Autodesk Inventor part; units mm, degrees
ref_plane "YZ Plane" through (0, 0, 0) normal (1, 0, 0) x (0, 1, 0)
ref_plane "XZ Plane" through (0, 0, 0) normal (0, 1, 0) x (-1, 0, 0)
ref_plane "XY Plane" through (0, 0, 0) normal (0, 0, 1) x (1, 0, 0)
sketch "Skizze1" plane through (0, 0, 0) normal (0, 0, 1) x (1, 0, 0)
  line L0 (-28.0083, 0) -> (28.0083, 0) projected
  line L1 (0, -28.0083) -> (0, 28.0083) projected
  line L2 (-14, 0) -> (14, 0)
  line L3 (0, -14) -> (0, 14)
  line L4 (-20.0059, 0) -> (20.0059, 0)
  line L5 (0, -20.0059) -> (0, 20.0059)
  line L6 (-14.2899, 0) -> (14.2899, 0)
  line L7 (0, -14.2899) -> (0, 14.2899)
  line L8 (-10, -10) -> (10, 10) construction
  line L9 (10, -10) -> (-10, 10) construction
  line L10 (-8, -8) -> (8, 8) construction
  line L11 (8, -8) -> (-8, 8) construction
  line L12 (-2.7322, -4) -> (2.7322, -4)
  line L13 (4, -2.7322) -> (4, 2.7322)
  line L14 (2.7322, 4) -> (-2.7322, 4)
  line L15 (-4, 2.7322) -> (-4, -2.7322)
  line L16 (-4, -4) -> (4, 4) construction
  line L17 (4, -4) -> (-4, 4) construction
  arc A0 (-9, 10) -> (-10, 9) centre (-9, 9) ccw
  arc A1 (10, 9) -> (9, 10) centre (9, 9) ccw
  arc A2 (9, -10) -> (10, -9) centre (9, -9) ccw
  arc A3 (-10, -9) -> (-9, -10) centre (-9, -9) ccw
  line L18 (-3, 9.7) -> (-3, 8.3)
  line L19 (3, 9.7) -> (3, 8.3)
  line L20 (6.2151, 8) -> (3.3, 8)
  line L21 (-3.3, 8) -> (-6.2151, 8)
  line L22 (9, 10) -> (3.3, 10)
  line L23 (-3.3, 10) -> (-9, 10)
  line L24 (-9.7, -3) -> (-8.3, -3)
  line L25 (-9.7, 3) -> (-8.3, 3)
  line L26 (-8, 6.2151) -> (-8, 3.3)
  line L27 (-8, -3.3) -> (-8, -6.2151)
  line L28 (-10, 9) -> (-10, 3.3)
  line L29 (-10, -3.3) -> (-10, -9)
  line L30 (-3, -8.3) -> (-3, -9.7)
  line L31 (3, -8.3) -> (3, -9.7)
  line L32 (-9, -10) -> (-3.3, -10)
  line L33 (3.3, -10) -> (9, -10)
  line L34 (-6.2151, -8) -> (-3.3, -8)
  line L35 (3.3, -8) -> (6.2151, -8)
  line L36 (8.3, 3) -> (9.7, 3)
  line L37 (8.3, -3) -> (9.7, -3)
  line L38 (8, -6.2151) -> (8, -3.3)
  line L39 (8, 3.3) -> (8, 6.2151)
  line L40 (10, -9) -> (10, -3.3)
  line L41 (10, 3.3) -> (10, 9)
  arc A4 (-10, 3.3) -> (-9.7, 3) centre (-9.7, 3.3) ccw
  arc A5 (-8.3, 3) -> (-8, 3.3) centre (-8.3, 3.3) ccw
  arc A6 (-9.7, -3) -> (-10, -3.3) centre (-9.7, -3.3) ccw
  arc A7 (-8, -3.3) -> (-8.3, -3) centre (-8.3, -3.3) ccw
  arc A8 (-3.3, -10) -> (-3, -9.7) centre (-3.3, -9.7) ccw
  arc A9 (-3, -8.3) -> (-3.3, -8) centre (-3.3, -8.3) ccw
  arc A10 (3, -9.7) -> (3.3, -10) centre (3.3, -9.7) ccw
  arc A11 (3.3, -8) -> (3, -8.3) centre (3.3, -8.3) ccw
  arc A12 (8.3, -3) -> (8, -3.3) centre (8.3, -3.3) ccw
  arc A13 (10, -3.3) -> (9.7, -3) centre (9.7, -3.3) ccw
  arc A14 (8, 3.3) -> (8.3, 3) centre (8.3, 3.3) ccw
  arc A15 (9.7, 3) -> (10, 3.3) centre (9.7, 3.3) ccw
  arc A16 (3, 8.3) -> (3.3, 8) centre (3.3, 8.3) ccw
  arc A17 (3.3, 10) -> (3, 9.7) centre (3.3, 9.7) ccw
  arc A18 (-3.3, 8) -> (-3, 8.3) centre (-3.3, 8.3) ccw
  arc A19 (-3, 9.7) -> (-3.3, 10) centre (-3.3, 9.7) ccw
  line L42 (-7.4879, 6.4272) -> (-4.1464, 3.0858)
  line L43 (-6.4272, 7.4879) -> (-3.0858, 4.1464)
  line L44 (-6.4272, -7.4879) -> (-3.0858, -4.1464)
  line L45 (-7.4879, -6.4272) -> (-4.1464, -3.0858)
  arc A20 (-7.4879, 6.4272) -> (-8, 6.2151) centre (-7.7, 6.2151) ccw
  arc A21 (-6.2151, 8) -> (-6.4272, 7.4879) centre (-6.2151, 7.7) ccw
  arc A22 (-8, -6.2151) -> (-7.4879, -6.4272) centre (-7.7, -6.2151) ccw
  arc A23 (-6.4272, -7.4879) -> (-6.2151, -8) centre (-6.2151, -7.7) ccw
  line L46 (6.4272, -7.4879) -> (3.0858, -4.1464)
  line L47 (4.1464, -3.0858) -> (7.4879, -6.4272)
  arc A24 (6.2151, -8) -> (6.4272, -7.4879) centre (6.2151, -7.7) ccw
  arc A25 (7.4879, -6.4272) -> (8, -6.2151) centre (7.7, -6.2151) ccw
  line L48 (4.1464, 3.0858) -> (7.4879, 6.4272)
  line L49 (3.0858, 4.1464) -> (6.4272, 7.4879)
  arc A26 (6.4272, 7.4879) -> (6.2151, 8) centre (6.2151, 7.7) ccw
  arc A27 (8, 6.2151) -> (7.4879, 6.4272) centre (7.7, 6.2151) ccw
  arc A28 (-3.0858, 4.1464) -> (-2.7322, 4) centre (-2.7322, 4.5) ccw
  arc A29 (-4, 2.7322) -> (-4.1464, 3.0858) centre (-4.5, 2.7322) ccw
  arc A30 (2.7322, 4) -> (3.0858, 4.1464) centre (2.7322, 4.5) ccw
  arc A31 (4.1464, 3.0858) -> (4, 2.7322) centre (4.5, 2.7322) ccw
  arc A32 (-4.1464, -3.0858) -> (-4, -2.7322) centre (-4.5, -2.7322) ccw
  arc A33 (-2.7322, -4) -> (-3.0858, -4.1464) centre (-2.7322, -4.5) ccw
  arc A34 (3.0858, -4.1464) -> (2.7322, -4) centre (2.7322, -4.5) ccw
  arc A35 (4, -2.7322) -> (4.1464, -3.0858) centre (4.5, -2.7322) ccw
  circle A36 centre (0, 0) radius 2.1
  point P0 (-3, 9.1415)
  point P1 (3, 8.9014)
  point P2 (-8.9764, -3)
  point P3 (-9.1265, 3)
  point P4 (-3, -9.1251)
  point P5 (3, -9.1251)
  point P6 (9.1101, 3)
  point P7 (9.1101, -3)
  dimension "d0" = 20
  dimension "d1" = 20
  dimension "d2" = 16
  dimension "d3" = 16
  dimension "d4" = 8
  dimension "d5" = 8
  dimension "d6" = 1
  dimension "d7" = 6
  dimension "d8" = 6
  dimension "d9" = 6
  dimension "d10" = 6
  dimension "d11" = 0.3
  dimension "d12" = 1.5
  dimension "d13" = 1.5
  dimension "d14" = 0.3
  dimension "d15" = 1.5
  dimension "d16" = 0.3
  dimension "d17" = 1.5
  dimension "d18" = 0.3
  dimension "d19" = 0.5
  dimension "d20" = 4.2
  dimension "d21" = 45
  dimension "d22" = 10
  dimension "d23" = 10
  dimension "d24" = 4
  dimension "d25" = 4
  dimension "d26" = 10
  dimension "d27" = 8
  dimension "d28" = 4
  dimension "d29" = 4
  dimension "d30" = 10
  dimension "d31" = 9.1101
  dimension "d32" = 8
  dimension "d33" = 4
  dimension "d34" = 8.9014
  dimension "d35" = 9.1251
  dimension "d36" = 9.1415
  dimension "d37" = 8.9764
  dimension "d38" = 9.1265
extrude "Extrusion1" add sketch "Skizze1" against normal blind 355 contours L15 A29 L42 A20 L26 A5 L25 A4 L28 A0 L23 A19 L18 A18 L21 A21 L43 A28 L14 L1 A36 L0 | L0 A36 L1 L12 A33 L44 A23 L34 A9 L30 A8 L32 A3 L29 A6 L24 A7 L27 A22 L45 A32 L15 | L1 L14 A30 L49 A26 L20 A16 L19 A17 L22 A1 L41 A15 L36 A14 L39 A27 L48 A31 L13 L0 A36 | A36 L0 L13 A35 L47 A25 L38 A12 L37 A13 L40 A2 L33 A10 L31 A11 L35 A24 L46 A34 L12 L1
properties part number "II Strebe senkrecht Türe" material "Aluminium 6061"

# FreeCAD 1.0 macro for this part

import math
import FreeCAD as App
import Part
import Sketcher
Q = App.Units.Quantity

doc = App.newDocument("Part")
body = doc.addObject("PartDesign::Body", "Body")

sketch1 = doc.addObject("Sketcher::SketchObject", "Sketch")
body.addObject(sketch1)
sketch1.AttachmentSupport = (doc.XY_Plane, [""])
sketch1.MapMode = "FlatFace"
sketch1.addGeometry(Part.LineSegment(App.Vector(-4, 2.73, 0), App.Vector(-4, -2.73, 0)), False)
sketch1.addGeometry(Part.ArcOfCircle(Part.Circle(App.Vector(-4.5, -2.73, 0), App.Vector(0, 0, 1), 0.5), math.radians(-45), math.radians(0)), False)
sketch1.addGeometry(Part.LineSegment(App.Vector(-4.15, -3.09, 0), App.Vector(-7.49, -6.43, 0)), False)
sketch1.addGeometry(Part.ArcOfCircle(Part.Circle(App.Vector(-7.7, -6.22, 0), App.Vector(0, 0, 1), 0.3), math.radians(180), math.radians(315)), False)
sketch1.addGeometry(Part.LineSegment(App.Vector(-8, -6.22, 0), App.Vector(-8, -3.3, 0)), False)
sketch1.addGeometry(Part.ArcOfCircle(Part.Circle(App.Vector(-8.3, -3.3, 0), App.Vector(0, 0, 1), 0.3), math.radians(0), math.radians(90)), False)
sketch1.addGeometry(Part.LineSegment(App.Vector(-8.3, -3, 0), App.Vector(-9.7, -3, 0)), False)
sketch1.addGeometry(Part.ArcOfCircle(Part.Circle(App.Vector(-9.7, -3.3, 0), App.Vector(0, 0, 1), 0.3), math.radians(90), math.radians(180)), False)
sketch1.addGeometry(Part.LineSegment(App.Vector(-10, -3.3, 0), App.Vector(-10, -9, 0)), False)
sketch1.addGeometry(Part.ArcOfCircle(Part.Circle(App.Vector(-9, -9, 0), App.Vector(0, 0, 1), 1), math.radians(180), math.radians(270)), False)
sketch1.addGeometry(Part.LineSegment(App.Vector(-9, -10, 0), App.Vector(-3.3, -10, 0)), False)
sketch1.addGeometry(Part.ArcOfCircle(Part.Circle(App.Vector(-3.3, -9.7, 0), App.Vector(0, 0, 1), 0.3), math.radians(-90), math.radians(0)), False)
sketch1.addGeometry(Part.LineSegment(App.Vector(-3, -9.7, 0), App.Vector(-3, -8.3, 0)), False)
sketch1.addGeometry(Part.ArcOfCircle(Part.Circle(App.Vector(-3.3, -8.3, 0), App.Vector(0, 0, 1), 0.3), math.radians(0), math.radians(90)), False)
sketch1.addGeometry(Part.LineSegment(App.Vector(-3.3, -8, 0), App.Vector(-6.22, -8, 0)), False)
sketch1.addGeometry(Part.ArcOfCircle(Part.Circle(App.Vector(-6.22, -7.7, 0), App.Vector(0, 0, 1), 0.3), math.radians(135), math.radians(270)), False)
sketch1.addGeometry(Part.LineSegment(App.Vector(-6.43, -7.49, 0), App.Vector(-3.09, -4.15, 0)), False)
sketch1.addGeometry(Part.ArcOfCircle(Part.Circle(App.Vector(-2.73, -4.5, 0), App.Vector(0, 0, 1), 0.5), math.radians(90), math.radians(135)), False)
sketch1.addGeometry(Part.LineSegment(App.Vector(-2.73, -4, 0), App.Vector(2.73, -4, 0)), False)
sketch1.addGeometry(Part.ArcOfCircle(Part.Circle(App.Vector(2.73, -4.5, 0), App.Vector(0, 0, 1), 0.5), math.radians(45), math.radians(90)), False)
sketch1.addGeometry(Part.LineSegment(App.Vector(3.09, -4.15, 0), App.Vector(6.43, -7.49, 0)), False)
sketch1.addGeometry(Part.ArcOfCircle(Part.Circle(App.Vector(6.22, -7.7, 0), App.Vector(0, 0, 1), 0.3), math.radians(-90), math.radians(45)), False)
sketch1.addGeometry(Part.LineSegment(App.Vector(6.22, -8, 0), App.Vector(3.3, -8, 0)), False)
sketch1.addGeometry(Part.ArcOfCircle(Part.Circle(App.Vector(3.3, -8.3, 0), App.Vector(0, 0, 1), 0.3), math.radians(90), math.radians(180)), False)
sketch1.addGeometry(Part.LineSegment(App.Vector(3, -8.3, 0), App.Vector(3, -9.7, 0)), False)
sketch1.addGeometry(Part.ArcOfCircle(Part.Circle(App.Vector(3.3, -9.7, 0), App.Vector(0, 0, 1), 0.3), math.radians(180), math.radians(270)), False)
sketch1.addGeometry(Part.LineSegment(App.Vector(3.3, -10, 0), App.Vector(9, -10, 0)), False)
sketch1.addGeometry(Part.ArcOfCircle(Part.Circle(App.Vector(9, -9, 0), App.Vector(0, 0, 1), 1), math.radians(-90), math.radians(0)), False)
sketch1.addGeometry(Part.LineSegment(App.Vector(10, -9, 0), App.Vector(10, -3.3, 0)), False)
sketch1.addGeometry(Part.ArcOfCircle(Part.Circle(App.Vector(9.7, -3.3, 0), App.Vector(0, 0, 1), 0.3), math.radians(0), math.radians(90)), False)
sketch1.addGeometry(Part.LineSegment(App.Vector(9.7, -3, 0), App.Vector(8.3, -3, 0)), False)
sketch1.addGeometry(Part.ArcOfCircle(Part.Circle(App.Vector(8.3, -3.3, 0), App.Vector(0, 0, 1), 0.3), math.radians(90), math.radians(180)), False)
sketch1.addGeometry(Part.LineSegment(App.Vector(8, -3.3, 0), App.Vector(8, -6.22, 0)), False)
sketch1.addGeometry(Part.ArcOfCircle(Part.Circle(App.Vector(7.7, -6.22, 0), App.Vector(0, 0, 1), 0.3), math.radians(-135), math.radians(0)), False)
sketch1.addGeometry(Part.LineSegment(App.Vector(7.49, -6.43, 0), App.Vector(4.15, -3.09, 0)), False)
sketch1.addGeometry(Part.ArcOfCircle(Part.Circle(App.Vector(4.5, -2.73, 0), App.Vector(0, 0, 1), 0.5), math.radians(180), math.radians(225)), False)
sketch1.addGeometry(Part.LineSegment(App.Vector(4, -2.73, 0), App.Vector(4, 2.73, 0)), False)
sketch1.addGeometry(Part.ArcOfCircle(Part.Circle(App.Vector(4.5, 2.73, 0), App.Vector(0, 0, 1), 0.5), math.radians(135), math.radians(180)), False)
sketch1.addGeometry(Part.LineSegment(App.Vector(4.15, 3.09, 0), App.Vector(7.49, 6.43, 0)), False)
sketch1.addGeometry(Part.ArcOfCircle(Part.Circle(App.Vector(7.7, 6.22, 0), App.Vector(0, 0, 1), 0.3), math.radians(0), math.radians(135)), False)
sketch1.addGeometry(Part.LineSegment(App.Vector(8, 6.22, 0), App.Vector(8, 3.3, 0)), False)
sketch1.addGeometry(Part.ArcOfCircle(Part.Circle(App.Vector(8.3, 3.3, 0), App.Vector(0, 0, 1), 0.3), math.radians(180), math.radians(270)), False)
sketch1.addGeometry(Part.LineSegment(App.Vector(8.3, 3, 0), App.Vector(9.7, 3, 0)), False)
sketch1.addGeometry(Part.ArcOfCircle(Part.Circle(App.Vector(9.7, 3.3, 0), App.Vector(0, 0, 1), 0.3), math.radians(-90), math.radians(0)), False)
sketch1.addGeometry(Part.LineSegment(App.Vector(10, 3.3, 0), App.Vector(10, 9, 0)), False)
sketch1.addGeometry(Part.ArcOfCircle(Part.Circle(App.Vector(9, 9, 0), App.Vector(0, 0, 1), 1), math.radians(0), math.radians(90)), False)
sketch1.addGeometry(Part.LineSegment(App.Vector(9, 10, 0), App.Vector(3.3, 10, 0)), False)
sketch1.addGeometry(Part.ArcOfCircle(Part.Circle(App.Vector(3.3, 9.7, 0), App.Vector(0, 0, 1), 0.3), math.radians(90), math.radians(180)), False)
sketch1.addGeometry(Part.LineSegment(App.Vector(3, 9.7, 0), App.Vector(3, 8.3, 0)), False)
sketch1.addGeometry(Part.ArcOfCircle(Part.Circle(App.Vector(3.3, 8.3, 0), App.Vector(0, 0, 1), 0.3), math.radians(180), math.radians(270)), False)
sketch1.addGeometry(Part.LineSegment(App.Vector(3.3, 8, 0), App.Vector(6.22, 8, 0)), False)
sketch1.addGeometry(Part.ArcOfCircle(Part.Circle(App.Vector(6.22, 7.7, 0), App.Vector(0, 0, 1), 0.3), math.radians(-45), math.radians(90)), False)
sketch1.addGeometry(Part.LineSegment(App.Vector(6.43, 7.49, 0), App.Vector(3.09, 4.15, 0)), False)
sketch1.addGeometry(Part.ArcOfCircle(Part.Circle(App.Vector(2.73, 4.5, 0), App.Vector(0, 0, 1), 0.5), math.radians(-90), math.radians(-45)), False)
sketch1.addGeometry(Part.LineSegment(App.Vector(2.73, 4, 0), App.Vector(-2.73, 4, 0)), False)
sketch1.addGeometry(Part.ArcOfCircle(Part.Circle(App.Vector(-2.73, 4.5, 0), App.Vector(0, 0, 1), 0.5), math.radians(-135), math.radians(-90)), False)
sketch1.addGeometry(Part.LineSegment(App.Vector(-3.09, 4.15, 0), App.Vector(-6.43, 7.49, 0)), False)
sketch1.addGeometry(Part.ArcOfCircle(Part.Circle(App.Vector(-6.22, 7.7, 0), App.Vector(0, 0, 1), 0.3), math.radians(90), math.radians(225)), False)
sketch1.addGeometry(Part.LineSegment(App.Vector(-6.22, 8, 0), App.Vector(-3.3, 8, 0)), False)
sketch1.addGeometry(Part.ArcOfCircle(Part.Circle(App.Vector(-3.3, 8.3, 0), App.Vector(0, 0, 1), 0.3), math.radians(-90), math.radians(0)), False)
sketch1.addGeometry(Part.LineSegment(App.Vector(-3, 8.3, 0), App.Vector(-3, 9.7, 0)), False)
sketch1.addGeometry(Part.ArcOfCircle(Part.Circle(App.Vector(-3.3, 9.7, 0), App.Vector(0, 0, 1), 0.3), math.radians(0), math.radians(90)), False)
sketch1.addGeometry(Part.LineSegment(App.Vector(-3.3, 10, 0), App.Vector(-9, 10, 0)), False)
sketch1.addGeometry(Part.ArcOfCircle(Part.Circle(App.Vector(-9, 9, 0), App.Vector(0, 0, 1), 1), math.radians(90), math.radians(180)), False)
sketch1.addGeometry(Part.LineSegment(App.Vector(-10, 9, 0), App.Vector(-10, 3.3, 0)), False)
sketch1.addGeometry(Part.ArcOfCircle(Part.Circle(App.Vector(-9.7, 3.3, 0), App.Vector(0, 0, 1), 0.3), math.radians(180), math.radians(270)), False)
sketch1.addGeometry(Part.LineSegment(App.Vector(-9.7, 3, 0), App.Vector(-8.3, 3, 0)), False)
sketch1.addGeometry(Part.ArcOfCircle(Part.Circle(App.Vector(-8.3, 3.3, 0), App.Vector(0, 0, 1), 0.3), math.radians(-90), math.radians(0)), False)
sketch1.addGeometry(Part.LineSegment(App.Vector(-8, 3.3, 0), App.Vector(-8, 6.22, 0)), False)
sketch1.addGeometry(Part.ArcOfCircle(Part.Circle(App.Vector(-7.7, 6.22, 0), App.Vector(0, 0, 1), 0.3), math.radians(45), math.radians(180)), False)
sketch1.addGeometry(Part.LineSegment(App.Vector(-7.49, 6.43, 0), App.Vector(-4.15, 3.09, 0)), False)
sketch1.addGeometry(Part.ArcOfCircle(Part.Circle(App.Vector(-4.5, 2.73, 0), App.Vector(0, 0, 1), 0.5), math.radians(0), math.radians(45)), False)
sketch1.addGeometry(Part.Circle(App.Vector(0, 0, 0), App.Vector(0, 0, 1), 2.1), False)
sketch1.addConstraint(Sketcher.Constraint("Tangent", 0, 2, 1, 2))
sketch1.addConstraint(Sketcher.Constraint("Tangent", 1, 1, 2, 1))
sketch1.addConstraint(Sketcher.Constraint("Tangent", 2, 2, 3, 2))
sketch1.addConstraint(Sketcher.Constraint("Tangent", 3, 1, 4, 1))
sketch1.addConstraint(Sketcher.Constraint("Tangent", 4, 2, 5, 1))
sketch1.addConstraint(Sketcher.Constraint("Tangent", 5, 2, 6, 1))
sketch1.addConstraint(Sketcher.Constraint("Tangent", 6, 2, 7, 1))
sketch1.addConstraint(Sketcher.Constraint("Tangent", 7, 2, 8, 1))
sketch1.addConstraint(Sketcher.Constraint("Tangent", 8, 2, 9, 1))
sketch1.addConstraint(Sketcher.Constraint("Tangent", 9, 2, 10, 1))
sketch1.addConstraint(Sketcher.Constraint("Tangent", 10, 2, 11, 1))
sketch1.addConstraint(Sketcher.Constraint("Tangent", 11, 2, 12, 1))
sketch1.addConstraint(Sketcher.Constraint("Tangent", 12, 2, 13, 1))
sketch1.addConstraint(Sketcher.Constraint("Tangent", 13, 2, 14, 1))
sketch1.addConstraint(Sketcher.Constraint("Tangent", 14, 2, 15, 2))
sketch1.addConstraint(Sketcher.Constraint("Tangent", 15, 1, 16, 1))
sketch1.addConstraint(Sketcher.Constraint("Tangent", 16, 2, 17, 2))
sketch1.addConstraint(Sketcher.Constraint("Tangent", 17, 1, 18, 1))
sketch1.addConstraint(Sketcher.Constraint("Tangent", 18, 2, 19, 2))
sketch1.addConstraint(Sketcher.Constraint("Tangent", 19, 1, 20, 1))
sketch1.addConstraint(Sketcher.Constraint("Tangent", 20, 2, 21, 2))
sketch1.addConstraint(Sketcher.Constraint("Tangent", 21, 1, 22, 1))
sketch1.addConstraint(Sketcher.Constraint("Tangent", 22, 2, 23, 1))
sketch1.addConstraint(Sketcher.Constraint("Tangent", 23, 2, 24, 1))
sketch1.addConstraint(Sketcher.Constraint("Tangent", 24, 2, 25, 1))
sketch1.addConstraint(Sketcher.Constraint("Tangent", 25, 2, 26, 1))
sketch1.addConstraint(Sketcher.Constraint("Tangent", 26, 2, 27, 1))
sketch1.addConstraint(Sketcher.Constraint("Tangent", 27, 2, 28, 1))
sketch1.addConstraint(Sketcher.Constraint("Tangent", 28, 2, 29, 1))
sketch1.addConstraint(Sketcher.Constraint("Tangent", 29, 2, 30, 1))
sketch1.addConstraint(Sketcher.Constraint("Tangent", 30, 2, 31, 1))
sketch1.addConstraint(Sketcher.Constraint("Tangent", 31, 2, 32, 1))
sketch1.addConstraint(Sketcher.Constraint("Tangent", 32, 2, 33, 2))
sketch1.addConstraint(Sketcher.Constraint("Tangent", 33, 1, 34, 1))
sketch1.addConstraint(Sketcher.Constraint("Tangent", 34, 2, 35, 2))
sketch1.addConstraint(Sketcher.Constraint("Tangent", 35, 1, 36, 1))
sketch1.addConstraint(Sketcher.Constraint("Tangent", 36, 2, 37, 2))
sketch1.addConstraint(Sketcher.Constraint("Tangent", 37, 1, 38, 1))
sketch1.addConstraint(Sketcher.Constraint("Tangent", 38, 2, 39, 2))
sketch1.addConstraint(Sketcher.Constraint("Tangent", 39, 1, 40, 1))
sketch1.addConstraint(Sketcher.Constraint("Tangent", 40, 2, 41, 1))
sketch1.addConstraint(Sketcher.Constraint("Tangent", 41, 2, 42, 1))
sketch1.addConstraint(Sketcher.Constraint("Tangent", 42, 2, 43, 1))
sketch1.addConstraint(Sketcher.Constraint("Tangent", 43, 2, 44, 1))
sketch1.addConstraint(Sketcher.Constraint("Tangent", 44, 2, 45, 1))
sketch1.addConstraint(Sketcher.Constraint("Tangent", 45, 2, 46, 1))
sketch1.addConstraint(Sketcher.Constraint("Tangent", 46, 2, 47, 1))
sketch1.addConstraint(Sketcher.Constraint("Tangent", 47, 2, 48, 1))
sketch1.addConstraint(Sketcher.Constraint("Tangent", 48, 2, 49, 1))
sketch1.addConstraint(Sketcher.Constraint("Tangent", 49, 2, 50, 1))
sketch1.addConstraint(Sketcher.Constraint("Tangent", 50, 2, 51, 2))
sketch1.addConstraint(Sketcher.Constraint("Tangent", 51, 1, 52, 1))
sketch1.addConstraint(Sketcher.Constraint("Tangent", 52, 2, 53, 2))
sketch1.addConstraint(Sketcher.Constraint("Tangent", 53, 1, 54, 1))
sketch1.addConstraint(Sketcher.Constraint("Tangent", 54, 2, 55, 2))
sketch1.addConstraint(Sketcher.Constraint("Tangent", 55, 1, 56, 1))
sketch1.addConstraint(Sketcher.Constraint("Tangent", 56, 2, 57, 2))
sketch1.addConstraint(Sketcher.Constraint("Tangent", 57, 1, 58, 1))
sketch1.addConstraint(Sketcher.Constraint("Tangent", 58, 2, 59, 1))
sketch1.addConstraint(Sketcher.Constraint("Tangent", 59, 2, 60, 1))
sketch1.addConstraint(Sketcher.Constraint("Tangent", 60, 2, 61, 1))
sketch1.addConstraint(Sketcher.Constraint("Tangent", 61, 2, 62, 1))
sketch1.addConstraint(Sketcher.Constraint("Tangent", 62, 2, 63, 1))
sketch1.addConstraint(Sketcher.Constraint("Tangent", 63, 2, 64, 1))
sketch1.addConstraint(Sketcher.Constraint("Tangent", 64, 2, 65, 1))
sketch1.addConstraint(Sketcher.Constraint("Tangent", 65, 2, 66, 1))
sketch1.addConstraint(Sketcher.Constraint("Tangent", 66, 2, 67, 1))
sketch1.addConstraint(Sketcher.Constraint("Tangent", 67, 2, 68, 1))
sketch1.addConstraint(Sketcher.Constraint("Tangent", 68, 2, 69, 2))
sketch1.addConstraint(Sketcher.Constraint("Tangent", 69, 1, 70, 1))
sketch1.addConstraint(Sketcher.Constraint("Tangent", 70, 2, 71, 2))
sketch1.addConstraint(Sketcher.Constraint("Tangent", 71, 1, 0, 1))
sketch1.addConstraint(Sketcher.Constraint("Vertical", 0))
sketch1.addConstraint(Sketcher.Constraint("Vertical", 4))
sketch1.addConstraint(Sketcher.Constraint("Horizontal", 6))
sketch1.addConstraint(Sketcher.Constraint("Vertical", 8))
sketch1.addConstraint(Sketcher.Constraint("Horizontal", 10))
sketch1.addConstraint(Sketcher.Constraint("Vertical", 12))
sketch1.addConstraint(Sketcher.Constraint("Horizontal", 14))
sketch1.addConstraint(Sketcher.Constraint("Horizontal", 18))
sketch1.addConstraint(Sketcher.Constraint("Horizontal", 22))
sketch1.addConstraint(Sketcher.Constraint("Vertical", 24))
sketch1.addConstraint(Sketcher.Constraint("Horizontal", 26))
sketch1.addConstraint(Sketcher.Constraint("Vertical", 28))
sketch1.addConstraint(Sketcher.Constraint("Horizontal", 30))
sketch1.addConstraint(Sketcher.Constraint("Vertical", 32))
sketch1.addConstraint(Sketcher.Constraint("Vertical", 36))
sketch1.addConstraint(Sketcher.Constraint("Vertical", 40))
sketch1.addConstraint(Sketcher.Constraint("Horizontal", 42))
sketch1.addConstraint(Sketcher.Constraint("Vertical", 44))
sketch1.addConstraint(Sketcher.Constraint("Horizontal", 46))
sketch1.addConstraint(Sketcher.Constraint("Vertical", 48))
sketch1.addConstraint(Sketcher.Constraint("Horizontal", 50))
sketch1.addConstraint(Sketcher.Constraint("Horizontal", 54))
sketch1.addConstraint(Sketcher.Constraint("Horizontal", 58))
sketch1.addConstraint(Sketcher.Constraint("Vertical", 60))
sketch1.addConstraint(Sketcher.Constraint("Horizontal", 62))
sketch1.addConstraint(Sketcher.Constraint("Vertical", 64))
sketch1.addConstraint(Sketcher.Constraint("Horizontal", 66))
sketch1.addConstraint(Sketcher.Constraint("Vertical", 68))
sketch1.addConstraint(Sketcher.Constraint("Coincident", 72, 3, -1, 1))
sketch1.addConstraint(Sketcher.Constraint("Equal", 3, 5))
sketch1.addConstraint(Sketcher.Constraint("Equal", 5, 7))
sketch1.addConstraint(Sketcher.Constraint("Equal", 7, 11))
sketch1.addConstraint(Sketcher.Constraint("Equal", 11, 13))
sketch1.addConstraint(Sketcher.Constraint("Equal", 13, 15))
sketch1.addConstraint(Sketcher.Constraint("Equal", 1, 17))
sketch1.addConstraint(Sketcher.Constraint("Equal", 17, 19))
sketch1.addConstraint(Sketcher.Constraint("Equal", 15, 21))
sketch1.addConstraint(Sketcher.Constraint("Equal", 21, 23))
sketch1.addConstraint(Sketcher.Constraint("Equal", 23, 25))
sketch1.addConstraint(Sketcher.Constraint("Equal", 9, 27))
sketch1.addConstraint(Sketcher.Constraint("Equal", 25, 29))
sketch1.addConstraint(Sketcher.Constraint("Equal", 29, 31))
sketch1.addConstraint(Sketcher.Constraint("Equal", 31, 33))
sketch1.addConstraint(Sketcher.Constraint("Equal", 19, 35))
sketch1.addConstraint(Sketcher.Constraint("Equal", 35, 37))
sketch1.addConstraint(Sketcher.Constraint("Equal", 33, 39))
sketch1.addConstraint(Sketcher.Constraint("Equal", 39, 41))
sketch1.addConstraint(Sketcher.Constraint("Equal", 41, 43))
sketch1.addConstraint(Sketcher.Constraint("Equal", 27, 45))
sketch1.addConstraint(Sketcher.Constraint("Equal", 43, 47))
sketch1.addConstraint(Sketcher.Constraint("Equal", 47, 49))
sketch1.addConstraint(Sketcher.Constraint("Equal", 49, 51))
sketch1.addConstraint(Sketcher.Constraint("Equal", 37, 53))
sketch1.addConstraint(Sketcher.Constraint("Equal", 53, 55))
sketch1.addConstraint(Sketcher.Constraint("Equal", 51, 57))
sketch1.addConstraint(Sketcher.Constraint("Equal", 57, 59))
sketch1.addConstraint(Sketcher.Constraint("Equal", 59, 61))
sketch1.addConstraint(Sketcher.Constraint("Equal", 45, 63))
sketch1.addConstraint(Sketcher.Constraint("Equal", 61, 65))
sketch1.addConstraint(Sketcher.Constraint("Equal", 65, 67))
sketch1.addConstraint(Sketcher.Constraint("Equal", 67, 69))
sketch1.addConstraint(Sketcher.Constraint("Equal", 55, 71))
sketch1.addConstraint(Sketcher.Constraint("Symmetric", 1, 3, 37, 3, -1, 1))
sketch1.addConstraint(Sketcher.Constraint("Symmetric", 3, 3, 39, 3, -1, 1))
sketch1.addConstraint(Sketcher.Constraint("Symmetric", 7, 3, 43, 3, -1, 1))
sketch1.addConstraint(Sketcher.Constraint("Symmetric", 11, 3, 47, 3, -1, 1))
sketch1.addConstraint(Sketcher.Constraint("Symmetric", 15, 3, 51, 3, -1, 1))
sketch1.addConstraint(Sketcher.Constraint("Symmetric", 17, 3, 53, 3, -1, 1))
sketch1.addConstraint(Sketcher.Constraint("Symmetric", 21, 3, 57, 3, -1, 1))
sketch1.addConstraint(Sketcher.Constraint("Symmetric", 25, 3, 61, 3, -1, 1))
sketch1.addConstraint(Sketcher.Constraint("Symmetric", 29, 3, 65, 3, -1, 1))
sketch1.addConstraint(Sketcher.Constraint("Symmetric", 33, 3, 69, 3, -1, 1))
sketch1.addConstraint(Sketcher.Constraint("Symmetric", 15, 3, 21, 3, -2))
sketch1.addConstraint(Sketcher.Constraint("Symmetric", 11, 3, 25, 3, -2))
sketch1.addConstraint(Sketcher.Constraint("Symmetric", 7, 3, 29, 3, -2))
sketch1.addConstraint(Sketcher.Constraint("Symmetric", 3, 3, 33, 3, -2))
sketch1.addConstraint(Sketcher.Constraint("Parallel", 2, 16))
sketch1.addConstraint(Sketcher.Constraint("Perpendicular", 16, 20))
sketch1.addConstraint(Sketcher.Constraint("Parallel", 20, 34))
sketch1.addConstraint(Sketcher.Constraint("Perpendicular", 52, 56))
sketch1.addConstraint(Sketcher.Constraint("Parallel", 56, 70))
sketch1.addConstraint(Sketcher.Constraint("Horizontal", 1, 3, 35, 3))
sketch1.addConstraint(Sketcher.Constraint("Equal", 54, 0))
sketch1.addConstraint(Sketcher.Constraint("Equal", 58, 4))
sketch1.addConstraint(Sketcher.Constraint("Equal", 62, 8))
sketch1.addConstraint(Sketcher.Constraint("Equal", 66, 12))
sketch1.addConstraint(Sketcher.Constraint("Equal", 2, 16))
sketch1.addConstraint(Sketcher.Constraint("Radius", 9, Q("1 mm")))
sketch1.addConstraint(Sketcher.Constraint("Diameter", 72, Q("4.2 mm")))
sketch1.addConstraint(Sketcher.Constraint("Radius", 1, Q("0.5 mm")))
sketch1.addConstraint(Sketcher.Constraint("Radius", 3, Q("0.3 mm")))
sketch1.addConstraint(Sketcher.Constraint("DistanceX", 0, 2, -1, 1, Q("4 mm")))
sketch1.addConstraint(Sketcher.Constraint("DistanceX", 3, 1, -1, 1, Q("8 mm")))
sketch1.addConstraint(Sketcher.Constraint("DistanceX", 7, 2, -1, 1, Q("10 mm")))
sketch1.addConstraint(Sketcher.Constraint("DistanceX", 10, 1, 10, 2, Q("5.7 mm")))
sketch1.addConstraint(Sketcher.Constraint("DistanceX", 14, 2, 14, 1, Q("2.915 mm")))
pad1 = doc.addObject("PartDesign::Pad", "Pad")
body.addObject(pad1)
pad1.Profile = sketch1
pad1.Length = 355
pad1.Reversed = True

doc.recompute()
